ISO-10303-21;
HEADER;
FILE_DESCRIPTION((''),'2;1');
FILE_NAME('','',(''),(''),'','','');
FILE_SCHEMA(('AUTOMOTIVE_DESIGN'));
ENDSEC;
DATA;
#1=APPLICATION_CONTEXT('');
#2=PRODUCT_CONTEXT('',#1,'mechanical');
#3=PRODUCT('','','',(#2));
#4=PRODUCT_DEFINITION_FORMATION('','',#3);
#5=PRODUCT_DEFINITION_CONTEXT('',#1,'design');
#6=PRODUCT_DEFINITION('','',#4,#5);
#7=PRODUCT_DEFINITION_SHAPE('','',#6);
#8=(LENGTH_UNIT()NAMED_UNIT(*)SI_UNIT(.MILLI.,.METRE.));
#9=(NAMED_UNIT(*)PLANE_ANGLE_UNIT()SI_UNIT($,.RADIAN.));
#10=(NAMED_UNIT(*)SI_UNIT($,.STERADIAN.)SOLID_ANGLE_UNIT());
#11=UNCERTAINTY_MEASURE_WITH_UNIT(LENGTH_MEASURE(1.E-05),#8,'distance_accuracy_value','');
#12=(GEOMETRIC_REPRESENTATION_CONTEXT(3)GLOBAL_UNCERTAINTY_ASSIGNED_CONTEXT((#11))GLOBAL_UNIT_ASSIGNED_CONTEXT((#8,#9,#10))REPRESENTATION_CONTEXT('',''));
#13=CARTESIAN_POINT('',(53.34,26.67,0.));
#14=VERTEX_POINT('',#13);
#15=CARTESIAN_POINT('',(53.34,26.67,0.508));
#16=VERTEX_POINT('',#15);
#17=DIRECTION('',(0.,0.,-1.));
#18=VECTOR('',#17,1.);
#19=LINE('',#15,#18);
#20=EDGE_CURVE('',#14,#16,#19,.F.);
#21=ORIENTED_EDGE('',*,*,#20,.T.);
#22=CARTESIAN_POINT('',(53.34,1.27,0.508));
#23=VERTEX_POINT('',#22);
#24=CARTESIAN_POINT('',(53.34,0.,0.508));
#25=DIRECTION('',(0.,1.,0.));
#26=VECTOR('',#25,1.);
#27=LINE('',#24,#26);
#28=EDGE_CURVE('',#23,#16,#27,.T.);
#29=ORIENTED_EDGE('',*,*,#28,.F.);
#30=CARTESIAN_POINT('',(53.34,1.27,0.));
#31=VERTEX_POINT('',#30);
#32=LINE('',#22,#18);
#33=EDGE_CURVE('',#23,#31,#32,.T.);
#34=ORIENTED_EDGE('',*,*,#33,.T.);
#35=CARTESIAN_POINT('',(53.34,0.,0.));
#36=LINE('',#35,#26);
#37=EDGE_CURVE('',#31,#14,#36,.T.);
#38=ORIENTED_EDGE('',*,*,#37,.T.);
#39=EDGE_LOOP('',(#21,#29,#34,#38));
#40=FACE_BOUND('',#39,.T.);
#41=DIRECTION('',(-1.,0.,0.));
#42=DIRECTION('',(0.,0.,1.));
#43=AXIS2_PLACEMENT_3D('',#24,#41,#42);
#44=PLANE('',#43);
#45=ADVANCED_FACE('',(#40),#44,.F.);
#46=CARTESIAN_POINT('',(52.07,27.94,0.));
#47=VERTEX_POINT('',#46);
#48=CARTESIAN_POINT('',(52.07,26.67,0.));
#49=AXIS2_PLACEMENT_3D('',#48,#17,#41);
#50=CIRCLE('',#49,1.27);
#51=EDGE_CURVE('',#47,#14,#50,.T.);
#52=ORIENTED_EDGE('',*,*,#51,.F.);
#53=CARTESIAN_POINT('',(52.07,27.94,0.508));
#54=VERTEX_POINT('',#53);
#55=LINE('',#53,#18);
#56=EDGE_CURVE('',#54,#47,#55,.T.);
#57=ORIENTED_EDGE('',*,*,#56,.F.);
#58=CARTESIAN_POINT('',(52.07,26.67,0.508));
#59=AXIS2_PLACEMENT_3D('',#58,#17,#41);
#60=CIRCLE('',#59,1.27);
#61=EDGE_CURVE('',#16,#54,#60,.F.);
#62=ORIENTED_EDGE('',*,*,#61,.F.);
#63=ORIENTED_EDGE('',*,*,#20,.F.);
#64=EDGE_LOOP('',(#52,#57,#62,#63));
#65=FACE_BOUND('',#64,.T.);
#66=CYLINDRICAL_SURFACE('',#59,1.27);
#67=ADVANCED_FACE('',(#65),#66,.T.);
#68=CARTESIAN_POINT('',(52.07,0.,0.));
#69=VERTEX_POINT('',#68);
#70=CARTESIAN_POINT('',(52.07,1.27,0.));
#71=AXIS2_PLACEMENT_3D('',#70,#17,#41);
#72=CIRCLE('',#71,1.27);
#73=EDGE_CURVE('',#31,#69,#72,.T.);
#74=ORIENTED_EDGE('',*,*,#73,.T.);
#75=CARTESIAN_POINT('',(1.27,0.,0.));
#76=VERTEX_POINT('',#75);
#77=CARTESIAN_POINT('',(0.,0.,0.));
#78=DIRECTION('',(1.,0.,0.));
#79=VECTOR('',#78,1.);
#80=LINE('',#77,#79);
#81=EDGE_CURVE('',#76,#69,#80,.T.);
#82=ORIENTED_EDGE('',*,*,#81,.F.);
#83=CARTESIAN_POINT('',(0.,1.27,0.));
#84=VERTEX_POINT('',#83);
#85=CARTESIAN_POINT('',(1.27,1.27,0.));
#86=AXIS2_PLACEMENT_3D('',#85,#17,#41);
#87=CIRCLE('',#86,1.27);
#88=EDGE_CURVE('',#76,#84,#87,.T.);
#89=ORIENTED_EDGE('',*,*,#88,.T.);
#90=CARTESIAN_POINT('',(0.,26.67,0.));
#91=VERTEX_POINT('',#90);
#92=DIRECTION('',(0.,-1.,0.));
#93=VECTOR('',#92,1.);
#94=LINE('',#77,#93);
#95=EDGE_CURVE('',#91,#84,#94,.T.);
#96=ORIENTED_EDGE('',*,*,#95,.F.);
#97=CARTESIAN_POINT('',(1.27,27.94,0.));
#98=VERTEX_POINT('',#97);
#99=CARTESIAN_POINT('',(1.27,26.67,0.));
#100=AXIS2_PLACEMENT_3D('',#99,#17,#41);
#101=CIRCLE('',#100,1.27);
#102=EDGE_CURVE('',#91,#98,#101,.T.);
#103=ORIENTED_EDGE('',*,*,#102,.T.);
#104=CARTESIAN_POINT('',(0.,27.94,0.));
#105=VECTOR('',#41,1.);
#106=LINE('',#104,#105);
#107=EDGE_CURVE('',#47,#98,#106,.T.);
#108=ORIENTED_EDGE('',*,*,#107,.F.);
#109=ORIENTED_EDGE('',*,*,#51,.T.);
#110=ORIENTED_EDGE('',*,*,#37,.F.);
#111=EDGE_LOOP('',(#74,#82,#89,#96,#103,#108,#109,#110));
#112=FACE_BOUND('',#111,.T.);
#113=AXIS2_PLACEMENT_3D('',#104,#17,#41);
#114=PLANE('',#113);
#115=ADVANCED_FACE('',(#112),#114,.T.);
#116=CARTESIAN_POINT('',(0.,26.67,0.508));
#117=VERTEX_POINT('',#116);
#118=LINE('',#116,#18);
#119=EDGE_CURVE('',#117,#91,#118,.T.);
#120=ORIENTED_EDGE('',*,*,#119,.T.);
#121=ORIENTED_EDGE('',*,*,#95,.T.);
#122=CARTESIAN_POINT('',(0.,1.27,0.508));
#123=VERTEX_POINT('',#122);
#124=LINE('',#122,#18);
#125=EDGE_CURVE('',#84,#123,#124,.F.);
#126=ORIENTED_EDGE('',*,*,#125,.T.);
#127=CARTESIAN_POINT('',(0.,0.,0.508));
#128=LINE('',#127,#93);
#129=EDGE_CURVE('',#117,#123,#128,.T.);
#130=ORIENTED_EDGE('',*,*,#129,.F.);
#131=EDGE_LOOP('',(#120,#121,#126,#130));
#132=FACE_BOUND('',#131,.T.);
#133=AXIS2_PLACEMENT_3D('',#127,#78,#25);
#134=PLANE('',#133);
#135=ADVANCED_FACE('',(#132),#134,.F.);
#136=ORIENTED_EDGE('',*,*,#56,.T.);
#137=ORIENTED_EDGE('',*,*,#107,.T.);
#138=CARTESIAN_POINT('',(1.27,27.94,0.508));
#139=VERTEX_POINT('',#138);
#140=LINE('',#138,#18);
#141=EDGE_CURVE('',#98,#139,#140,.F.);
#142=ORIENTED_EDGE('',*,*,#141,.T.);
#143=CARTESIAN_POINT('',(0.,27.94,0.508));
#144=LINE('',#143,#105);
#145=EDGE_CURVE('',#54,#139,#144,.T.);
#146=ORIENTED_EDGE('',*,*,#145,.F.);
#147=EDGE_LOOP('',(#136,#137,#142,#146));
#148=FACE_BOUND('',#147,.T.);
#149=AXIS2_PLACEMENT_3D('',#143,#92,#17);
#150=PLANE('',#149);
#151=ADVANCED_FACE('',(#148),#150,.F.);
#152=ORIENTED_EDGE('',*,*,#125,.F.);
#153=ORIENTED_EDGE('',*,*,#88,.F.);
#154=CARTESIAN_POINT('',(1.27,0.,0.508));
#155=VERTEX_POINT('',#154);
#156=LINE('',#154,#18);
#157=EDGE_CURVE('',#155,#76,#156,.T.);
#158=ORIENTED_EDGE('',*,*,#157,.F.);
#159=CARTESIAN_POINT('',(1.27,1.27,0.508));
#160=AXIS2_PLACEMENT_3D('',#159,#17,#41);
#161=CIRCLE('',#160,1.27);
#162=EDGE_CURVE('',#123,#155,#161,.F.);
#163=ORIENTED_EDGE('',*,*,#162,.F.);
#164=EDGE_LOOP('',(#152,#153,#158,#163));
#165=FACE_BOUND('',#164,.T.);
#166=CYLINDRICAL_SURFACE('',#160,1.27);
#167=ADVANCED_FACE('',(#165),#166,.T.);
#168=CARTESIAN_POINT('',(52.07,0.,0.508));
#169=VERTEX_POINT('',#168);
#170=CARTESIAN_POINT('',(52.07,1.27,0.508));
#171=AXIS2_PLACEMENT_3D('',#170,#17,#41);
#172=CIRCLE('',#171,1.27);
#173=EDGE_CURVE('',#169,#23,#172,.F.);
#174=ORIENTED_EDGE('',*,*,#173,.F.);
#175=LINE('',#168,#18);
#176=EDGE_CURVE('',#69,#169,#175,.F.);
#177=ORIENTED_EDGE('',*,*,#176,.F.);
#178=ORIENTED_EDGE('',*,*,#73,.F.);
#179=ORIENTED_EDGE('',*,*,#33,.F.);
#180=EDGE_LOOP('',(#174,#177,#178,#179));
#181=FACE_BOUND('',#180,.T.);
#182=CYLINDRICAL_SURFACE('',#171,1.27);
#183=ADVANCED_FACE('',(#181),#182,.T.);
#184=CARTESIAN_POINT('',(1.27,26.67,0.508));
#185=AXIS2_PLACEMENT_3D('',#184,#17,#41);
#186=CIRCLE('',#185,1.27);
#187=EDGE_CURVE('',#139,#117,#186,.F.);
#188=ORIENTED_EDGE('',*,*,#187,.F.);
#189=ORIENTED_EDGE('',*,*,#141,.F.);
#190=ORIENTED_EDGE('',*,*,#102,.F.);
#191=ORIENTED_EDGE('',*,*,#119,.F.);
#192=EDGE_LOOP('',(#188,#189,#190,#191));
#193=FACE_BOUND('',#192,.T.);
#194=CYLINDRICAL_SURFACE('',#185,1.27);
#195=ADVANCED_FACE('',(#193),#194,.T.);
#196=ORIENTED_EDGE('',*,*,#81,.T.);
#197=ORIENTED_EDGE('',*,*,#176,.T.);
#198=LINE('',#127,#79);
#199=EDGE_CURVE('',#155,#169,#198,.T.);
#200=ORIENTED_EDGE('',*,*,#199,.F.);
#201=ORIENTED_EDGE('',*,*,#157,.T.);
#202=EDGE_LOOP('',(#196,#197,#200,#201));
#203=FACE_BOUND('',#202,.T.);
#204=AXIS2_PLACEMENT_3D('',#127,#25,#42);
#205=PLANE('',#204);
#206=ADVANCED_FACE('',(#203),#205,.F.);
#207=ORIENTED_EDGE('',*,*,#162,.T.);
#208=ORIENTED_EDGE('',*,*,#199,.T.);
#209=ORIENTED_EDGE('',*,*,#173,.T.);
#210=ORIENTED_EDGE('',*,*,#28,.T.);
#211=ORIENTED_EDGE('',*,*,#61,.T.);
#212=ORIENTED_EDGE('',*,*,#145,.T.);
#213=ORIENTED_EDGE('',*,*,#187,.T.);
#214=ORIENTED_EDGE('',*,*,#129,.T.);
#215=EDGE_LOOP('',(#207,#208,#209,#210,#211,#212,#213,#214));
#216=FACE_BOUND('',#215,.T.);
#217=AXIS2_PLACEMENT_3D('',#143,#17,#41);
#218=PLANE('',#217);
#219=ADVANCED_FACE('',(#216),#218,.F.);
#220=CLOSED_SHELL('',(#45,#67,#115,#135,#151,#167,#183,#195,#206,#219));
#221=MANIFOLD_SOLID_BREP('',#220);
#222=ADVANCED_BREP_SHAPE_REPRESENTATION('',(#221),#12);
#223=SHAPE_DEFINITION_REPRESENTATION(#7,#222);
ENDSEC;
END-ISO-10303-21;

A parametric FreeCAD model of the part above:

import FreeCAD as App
import Part
import Sketcher

V = App.Vector
Q = App.Units.Quantity


def edges_at(feature, points):
    """Names of the edges that pass closest to the given points."""
    edges = feature.Shape.Edges
    near = lambda p: min(range(len(edges)), key=lambda i: edges[i].distToShape(Part.Vertex(*p))[0])
    return sorted({f"Edge{near(p) + 1}" for p in points})

doc = App.newDocument("Part")
body = doc.addObject("PartDesign::Body", "Body")

sketch1 = doc.addObject("Sketcher::SketchObject", "Sketch")
body.addObject(sketch1)
sketch1.AttachmentSupport = (doc.XY_Plane, [""])
sketch1.MapMode = "FlatFace"
sketch1.addGeometry([
    Part.LineSegment(V(0, 28, 0), V(0, 0, 0)),
    Part.LineSegment(V(0, 0, 0), V(53, 0, 0)),
    Part.LineSegment(V(53, 0, 0), V(53, 28, 0)),
    Part.LineSegment(V(53, 28, 0), V(0, 28, 0)),
], False)
sketch1.addConstraint([
    Sketcher.Constraint("Coincident", 0, 2, 1, 1),
    Sketcher.Constraint("Coincident", 1, 2, 2, 1),
    Sketcher.Constraint("Coincident", 2, 2, 3, 1),
    Sketcher.Constraint("Coincident", 3, 2, 0, 1),
    Sketcher.Constraint("Vertical", 0),
    Sketcher.Constraint("Horizontal", 1),
    Sketcher.Constraint("Vertical", 2),
    Sketcher.Constraint("Horizontal", 3),
    Sketcher.Constraint("Coincident", 0, 2, -1, 1),
    Sketcher.Constraint("DistanceX", 1, 1, 1, 2, Q("2.1 in")),
    Sketcher.Constraint("DistanceY", 0, 2, 0, 1, Q("1.1 in")),
])
pad1 = doc.addObject("PartDesign::Pad", "Pad")
body.addObject(pad1)
pad1.Profile = sketch1
pad1.Length = Q("0.02 in")
doc.recompute()

fillet = doc.addObject("PartDesign::Fillet", "Fillet")
body.addObject(fillet)
fillet.Base = (pad1, edges_at(pad1, [
    (0, 27.94, 0.254),
    (53.34, 27.94, 0.254),
    (53.34, 0, 0.254),
    (0, 0, 0.254),
]))
fillet.Radius = Q("0.05 in")

doc.recompute()
